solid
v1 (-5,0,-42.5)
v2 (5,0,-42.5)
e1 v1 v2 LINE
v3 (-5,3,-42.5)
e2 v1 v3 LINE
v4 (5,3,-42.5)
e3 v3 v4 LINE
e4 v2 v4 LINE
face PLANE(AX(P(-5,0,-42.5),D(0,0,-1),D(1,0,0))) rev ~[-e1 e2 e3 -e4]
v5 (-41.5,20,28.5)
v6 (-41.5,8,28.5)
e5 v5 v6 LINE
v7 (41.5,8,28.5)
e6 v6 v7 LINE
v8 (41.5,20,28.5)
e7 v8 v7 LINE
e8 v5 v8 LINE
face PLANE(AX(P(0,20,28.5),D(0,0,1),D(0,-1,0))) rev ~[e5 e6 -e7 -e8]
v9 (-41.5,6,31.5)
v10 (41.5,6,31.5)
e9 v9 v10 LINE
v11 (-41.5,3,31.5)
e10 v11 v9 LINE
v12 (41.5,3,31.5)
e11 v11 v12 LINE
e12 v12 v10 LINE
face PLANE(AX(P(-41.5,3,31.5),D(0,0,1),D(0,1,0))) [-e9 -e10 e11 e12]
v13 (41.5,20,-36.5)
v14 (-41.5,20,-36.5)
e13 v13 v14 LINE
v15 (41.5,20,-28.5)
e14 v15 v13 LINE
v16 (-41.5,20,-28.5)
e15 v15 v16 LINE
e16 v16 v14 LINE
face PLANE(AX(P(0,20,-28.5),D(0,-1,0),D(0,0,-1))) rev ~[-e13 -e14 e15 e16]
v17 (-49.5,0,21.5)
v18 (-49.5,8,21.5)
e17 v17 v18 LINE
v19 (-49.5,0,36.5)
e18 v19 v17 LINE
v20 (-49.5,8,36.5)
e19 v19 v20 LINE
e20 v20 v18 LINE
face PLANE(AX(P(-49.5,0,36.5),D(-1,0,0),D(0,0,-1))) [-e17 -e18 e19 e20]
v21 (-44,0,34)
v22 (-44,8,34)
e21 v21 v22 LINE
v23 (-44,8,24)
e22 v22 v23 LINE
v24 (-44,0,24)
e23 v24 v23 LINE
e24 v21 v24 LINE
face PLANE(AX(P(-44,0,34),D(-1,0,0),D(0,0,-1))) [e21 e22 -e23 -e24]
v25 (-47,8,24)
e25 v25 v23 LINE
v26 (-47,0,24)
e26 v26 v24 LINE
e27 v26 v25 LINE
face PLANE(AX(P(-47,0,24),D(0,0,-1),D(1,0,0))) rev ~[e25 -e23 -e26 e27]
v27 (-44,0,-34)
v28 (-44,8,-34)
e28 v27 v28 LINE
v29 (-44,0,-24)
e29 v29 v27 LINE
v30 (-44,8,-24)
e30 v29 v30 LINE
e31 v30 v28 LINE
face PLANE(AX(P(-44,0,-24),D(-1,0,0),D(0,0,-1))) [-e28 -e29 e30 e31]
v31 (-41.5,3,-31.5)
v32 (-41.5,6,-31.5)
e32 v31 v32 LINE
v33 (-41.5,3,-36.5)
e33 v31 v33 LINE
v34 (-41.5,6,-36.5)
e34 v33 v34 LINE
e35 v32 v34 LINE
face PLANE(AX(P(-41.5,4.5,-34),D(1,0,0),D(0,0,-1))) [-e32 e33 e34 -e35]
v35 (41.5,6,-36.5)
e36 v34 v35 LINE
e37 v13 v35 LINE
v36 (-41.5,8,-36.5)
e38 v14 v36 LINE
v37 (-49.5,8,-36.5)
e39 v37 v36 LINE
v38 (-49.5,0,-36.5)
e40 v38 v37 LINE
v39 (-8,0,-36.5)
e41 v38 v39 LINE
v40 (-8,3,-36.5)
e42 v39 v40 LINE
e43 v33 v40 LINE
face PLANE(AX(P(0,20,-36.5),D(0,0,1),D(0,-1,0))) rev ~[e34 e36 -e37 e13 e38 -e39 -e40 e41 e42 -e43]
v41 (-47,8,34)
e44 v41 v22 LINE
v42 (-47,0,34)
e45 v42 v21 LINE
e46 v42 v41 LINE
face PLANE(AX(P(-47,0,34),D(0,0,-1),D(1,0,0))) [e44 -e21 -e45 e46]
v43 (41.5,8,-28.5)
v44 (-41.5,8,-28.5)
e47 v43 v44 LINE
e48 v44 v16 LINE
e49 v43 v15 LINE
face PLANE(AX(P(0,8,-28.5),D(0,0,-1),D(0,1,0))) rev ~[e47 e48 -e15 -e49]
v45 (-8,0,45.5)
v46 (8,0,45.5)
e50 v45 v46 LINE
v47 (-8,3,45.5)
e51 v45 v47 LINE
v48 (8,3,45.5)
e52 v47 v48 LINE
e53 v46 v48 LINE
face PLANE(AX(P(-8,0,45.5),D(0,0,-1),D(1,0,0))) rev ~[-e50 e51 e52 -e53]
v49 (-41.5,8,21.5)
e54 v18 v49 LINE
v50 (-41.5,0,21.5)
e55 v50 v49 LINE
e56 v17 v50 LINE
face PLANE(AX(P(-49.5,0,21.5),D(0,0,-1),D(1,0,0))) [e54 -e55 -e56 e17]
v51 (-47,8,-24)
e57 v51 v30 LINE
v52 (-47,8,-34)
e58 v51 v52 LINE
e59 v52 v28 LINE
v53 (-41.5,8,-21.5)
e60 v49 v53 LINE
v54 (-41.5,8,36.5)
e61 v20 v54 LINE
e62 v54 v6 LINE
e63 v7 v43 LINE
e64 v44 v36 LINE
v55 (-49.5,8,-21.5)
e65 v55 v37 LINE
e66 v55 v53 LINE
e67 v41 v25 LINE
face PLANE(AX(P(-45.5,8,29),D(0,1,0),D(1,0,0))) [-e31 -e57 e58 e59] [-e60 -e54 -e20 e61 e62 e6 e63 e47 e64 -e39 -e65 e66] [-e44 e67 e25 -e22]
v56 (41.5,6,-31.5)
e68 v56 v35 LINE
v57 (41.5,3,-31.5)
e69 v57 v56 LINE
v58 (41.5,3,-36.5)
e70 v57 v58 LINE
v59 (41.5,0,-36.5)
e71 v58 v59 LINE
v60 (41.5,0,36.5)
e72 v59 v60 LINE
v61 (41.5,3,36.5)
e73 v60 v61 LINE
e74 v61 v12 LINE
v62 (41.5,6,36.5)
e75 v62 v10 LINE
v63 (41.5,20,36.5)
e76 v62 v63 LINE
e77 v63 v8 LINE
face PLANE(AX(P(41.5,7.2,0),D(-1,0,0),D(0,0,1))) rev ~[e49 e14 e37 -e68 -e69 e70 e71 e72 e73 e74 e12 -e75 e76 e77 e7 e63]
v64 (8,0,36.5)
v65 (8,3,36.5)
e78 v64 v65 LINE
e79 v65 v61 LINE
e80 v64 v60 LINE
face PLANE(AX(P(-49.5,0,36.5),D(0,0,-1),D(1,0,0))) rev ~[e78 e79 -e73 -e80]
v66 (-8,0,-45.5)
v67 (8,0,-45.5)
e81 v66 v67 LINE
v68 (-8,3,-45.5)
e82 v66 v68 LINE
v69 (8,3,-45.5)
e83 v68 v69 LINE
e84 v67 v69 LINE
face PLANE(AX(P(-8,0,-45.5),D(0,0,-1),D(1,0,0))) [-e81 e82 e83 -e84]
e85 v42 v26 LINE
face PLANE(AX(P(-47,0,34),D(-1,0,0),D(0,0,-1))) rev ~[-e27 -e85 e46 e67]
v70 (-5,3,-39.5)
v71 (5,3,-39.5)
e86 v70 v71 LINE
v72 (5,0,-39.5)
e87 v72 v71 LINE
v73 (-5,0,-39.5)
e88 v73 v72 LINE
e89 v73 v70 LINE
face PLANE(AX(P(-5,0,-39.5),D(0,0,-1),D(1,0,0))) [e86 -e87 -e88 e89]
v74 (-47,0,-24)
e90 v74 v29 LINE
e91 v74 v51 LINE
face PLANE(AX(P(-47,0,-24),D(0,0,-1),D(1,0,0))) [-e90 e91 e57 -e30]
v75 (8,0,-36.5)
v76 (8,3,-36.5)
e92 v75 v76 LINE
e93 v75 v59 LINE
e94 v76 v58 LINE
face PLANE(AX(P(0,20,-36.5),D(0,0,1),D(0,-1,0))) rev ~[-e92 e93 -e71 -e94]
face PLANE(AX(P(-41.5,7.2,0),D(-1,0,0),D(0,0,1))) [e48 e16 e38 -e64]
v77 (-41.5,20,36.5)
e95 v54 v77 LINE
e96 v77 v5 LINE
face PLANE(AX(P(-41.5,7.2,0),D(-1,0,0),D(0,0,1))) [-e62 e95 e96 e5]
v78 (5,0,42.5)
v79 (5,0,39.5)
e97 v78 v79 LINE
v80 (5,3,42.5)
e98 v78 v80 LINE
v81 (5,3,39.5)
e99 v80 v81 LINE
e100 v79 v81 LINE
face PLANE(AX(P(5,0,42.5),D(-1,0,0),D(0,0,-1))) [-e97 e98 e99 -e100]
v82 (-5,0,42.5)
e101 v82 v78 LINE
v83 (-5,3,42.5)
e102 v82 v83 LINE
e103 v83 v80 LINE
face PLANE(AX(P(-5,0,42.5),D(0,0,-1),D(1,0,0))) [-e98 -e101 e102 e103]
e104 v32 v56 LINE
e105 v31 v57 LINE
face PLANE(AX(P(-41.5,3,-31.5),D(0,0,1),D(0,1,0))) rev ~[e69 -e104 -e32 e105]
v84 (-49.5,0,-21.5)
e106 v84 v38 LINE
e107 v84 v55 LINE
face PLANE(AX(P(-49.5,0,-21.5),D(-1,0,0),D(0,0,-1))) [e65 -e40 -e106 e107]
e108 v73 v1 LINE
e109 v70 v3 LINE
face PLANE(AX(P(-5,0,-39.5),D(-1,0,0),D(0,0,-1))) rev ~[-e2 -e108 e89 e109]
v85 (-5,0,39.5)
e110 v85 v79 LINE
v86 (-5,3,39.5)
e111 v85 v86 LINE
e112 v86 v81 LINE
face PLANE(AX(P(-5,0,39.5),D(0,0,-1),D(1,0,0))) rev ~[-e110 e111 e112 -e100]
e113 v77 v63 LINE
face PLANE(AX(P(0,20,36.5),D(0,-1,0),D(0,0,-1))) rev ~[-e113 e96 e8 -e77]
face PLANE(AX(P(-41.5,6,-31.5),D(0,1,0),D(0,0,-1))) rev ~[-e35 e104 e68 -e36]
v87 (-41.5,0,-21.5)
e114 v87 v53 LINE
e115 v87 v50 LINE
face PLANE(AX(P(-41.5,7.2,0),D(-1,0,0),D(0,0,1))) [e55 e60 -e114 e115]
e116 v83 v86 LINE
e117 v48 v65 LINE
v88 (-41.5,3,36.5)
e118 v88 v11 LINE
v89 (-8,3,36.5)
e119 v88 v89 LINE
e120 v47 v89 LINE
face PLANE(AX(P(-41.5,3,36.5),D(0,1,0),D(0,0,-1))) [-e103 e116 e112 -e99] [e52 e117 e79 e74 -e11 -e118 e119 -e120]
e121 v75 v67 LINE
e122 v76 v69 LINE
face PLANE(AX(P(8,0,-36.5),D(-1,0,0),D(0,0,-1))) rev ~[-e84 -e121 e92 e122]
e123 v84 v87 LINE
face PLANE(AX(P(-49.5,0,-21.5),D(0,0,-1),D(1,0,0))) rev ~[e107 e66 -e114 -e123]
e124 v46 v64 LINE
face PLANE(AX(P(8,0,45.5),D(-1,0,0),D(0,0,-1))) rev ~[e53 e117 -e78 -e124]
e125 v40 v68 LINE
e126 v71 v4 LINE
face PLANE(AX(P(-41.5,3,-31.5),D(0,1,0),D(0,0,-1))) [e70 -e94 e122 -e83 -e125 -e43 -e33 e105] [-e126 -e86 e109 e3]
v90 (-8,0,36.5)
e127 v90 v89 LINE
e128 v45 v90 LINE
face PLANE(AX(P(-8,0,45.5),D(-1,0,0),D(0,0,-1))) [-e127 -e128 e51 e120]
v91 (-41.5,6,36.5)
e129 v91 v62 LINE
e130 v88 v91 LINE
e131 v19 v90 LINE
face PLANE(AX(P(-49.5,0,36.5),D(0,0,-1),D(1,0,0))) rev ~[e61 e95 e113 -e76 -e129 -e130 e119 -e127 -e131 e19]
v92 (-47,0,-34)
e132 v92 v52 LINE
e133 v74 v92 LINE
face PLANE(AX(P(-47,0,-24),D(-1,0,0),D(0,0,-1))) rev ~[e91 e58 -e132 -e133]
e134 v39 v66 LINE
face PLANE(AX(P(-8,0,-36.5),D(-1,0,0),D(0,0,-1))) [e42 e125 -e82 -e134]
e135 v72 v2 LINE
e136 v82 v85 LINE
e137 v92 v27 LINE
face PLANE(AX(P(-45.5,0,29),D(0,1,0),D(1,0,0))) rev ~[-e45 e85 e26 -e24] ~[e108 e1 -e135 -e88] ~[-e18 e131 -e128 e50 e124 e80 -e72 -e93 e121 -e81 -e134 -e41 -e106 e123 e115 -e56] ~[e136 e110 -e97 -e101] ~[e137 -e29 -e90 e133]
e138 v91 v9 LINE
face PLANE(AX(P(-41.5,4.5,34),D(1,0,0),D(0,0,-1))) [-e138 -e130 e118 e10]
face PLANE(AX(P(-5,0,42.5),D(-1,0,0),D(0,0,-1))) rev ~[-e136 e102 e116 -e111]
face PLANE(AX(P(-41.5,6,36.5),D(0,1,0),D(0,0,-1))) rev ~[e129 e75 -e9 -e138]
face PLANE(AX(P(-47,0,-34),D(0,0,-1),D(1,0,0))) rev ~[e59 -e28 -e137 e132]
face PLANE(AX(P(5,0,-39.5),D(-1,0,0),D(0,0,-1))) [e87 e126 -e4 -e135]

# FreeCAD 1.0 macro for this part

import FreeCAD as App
import Part
import Sketcher

V = App.Vector


def add_polygon(sketch, points):
    """Adds a closed chain of lines whose ends are joined by coincident constraints."""
    first, n = sketch.GeometryCount, len(points)
    for a, b in zip(points, points[1:] + points[:1]):
        sketch.addGeometry(Part.LineSegment(App.Vector(*a, 0), App.Vector(*b, 0)), False)
    for i in range(n):
        sketch.addConstraint(Sketcher.Constraint("Coincident", first + i, 2, first + (i + 1) % n, 1))

doc = App.newDocument("Part")
body = doc.addObject("PartDesign::Body", "Body")

sketch1 = body.newObject("Sketcher::SketchObject", "Sketch")
sketch1.AttachmentSupport = (doc.getObject("YZ_Plane"), [""])
sketch1.MapMode = "FlatFace"
add_polygon(sketch1, [(8, -28), (8, 28), (20, 28), (20, 36), (0, 36), (0, -36), (20, -36), (20, -28)])
sketch1.addConstraint([
    Sketcher.Constraint("Vertical", 0),
    Sketcher.Constraint("Horizontal", 1),
    Sketcher.Constraint("Vertical", 2),
    Sketcher.Constraint("Horizontal", 3),
    Sketcher.Constraint("Vertical", 4),
    Sketcher.Constraint("Horizontal", 5),
    Sketcher.Constraint("Vertical", 6),
    Sketcher.Constraint("Horizontal", 7),
    Sketcher.Constraint("Symmetric", 3, 2, 4, 2, -1, 1),
    Sketcher.Constraint("Symmetric", 1, 2, 6, 2, -1),
    Sketcher.Constraint("DistanceX", 1, 1, 1, 2, 12.0),
    Sketcher.Constraint("DistanceX", 3, 2, 3, 1, 20.0),
    Sketcher.Constraint("DistanceY", 0, 1, 0, 2, 57.0),
    Sketcher.Constraint("DistanceY", 2, 1, 2, 2, 8.0),
])
pad1 = body.newObject("PartDesign::Pad", "Pad")
pad1.Profile = sketch1
pad1.Length = 83
pad1.Midplane = True

sketch2 = body.newObject("Sketcher::SketchObject", "Sketch001")
sketch2.AttachmentSupport = (doc.getObject("XZ_Plane"), [""])
sketch2.MapMode = "FlatFace"
add_polygon(sketch2, [(-49.5, 21.5), (-49.5, 36.5), (-41.5, 36.5), (-41.5, 21.5)])
add_polygon(sketch2, [(-44, 34), (-47, 34), (-47, 24), (-44, 24)])
add_polygon(sketch2, [(-49.5, -36.5), (-49.5, -21.5), (-41.5, -21.5), (-41.5, -36.5)])
add_polygon(sketch2, [(-44, -24), (-47, -24), (-47, -34), (-44, -34)])
sketch2.addConstraint([
    Sketcher.Constraint("Vertical", 0),
    Sketcher.Constraint("Horizontal", 1),
    Sketcher.Constraint("Vertical", 2),
    Sketcher.Constraint("Horizontal", 3),
    Sketcher.Constraint("Horizontal", 4),
    Sketcher.Constraint("Vertical", 5),
    Sketcher.Constraint("Horizontal", 6),
    Sketcher.Constraint("Vertical", 7),
    Sketcher.Constraint("Vertical", 8),
    Sketcher.Constraint("Horizontal", 9),
    Sketcher.Constraint("Vertical", 10),
    Sketcher.Constraint("Horizontal", 11),
    Sketcher.Constraint("Horizontal", 12),
    Sketcher.Constraint("Vertical", 13),
    Sketcher.Constraint("Horizontal", 14),
    Sketcher.Constraint("Vertical", 15),
    Sketcher.Constraint("Symmetric", 3, 2, 8, 2, -1),
    Sketcher.Constraint("Symmetric", 1, 2, 10, 2, -1),
    Sketcher.Constraint("Symmetric", 5, 2, 12, 2, -1),
    Sketcher.Constraint("Symmetric", 7, 2, 14, 2, -1),
    Sketcher.Constraint("DistanceX", 1, 1, 1, 2, 8.0),
    Sketcher.Constraint("DistanceX", 4, 2, 4, 1, 3.0),
    Sketcher.Constraint("DistanceY", 0, 1, 0, 2, 15.0),
    Sketcher.Constraint("DistanceY", 5, 2, 5, 1, 10.0),
    Sketcher.Constraint("DistanceX", 4, 2, -1, 1, 47.0),
    Sketcher.Constraint("DistanceY", -1, 1, 4, 2, 34.0),
    Sketcher.Constraint("DistanceY", 8, 2, 3, 2, 43.0),
    Sketcher.Constraint("DistanceX", 0, 2, -1, 1, 49.5),
])
pad2 = body.newObject("PartDesign::Pad", "Pad001")
pad2.Profile = sketch2
pad2.Length = 8
pad2.Reversed = True

sketch3 = body.newObject("Sketcher::SketchObject", "Sketch002")
sketch3.AttachmentSupport = (doc.getObject("XZ_Plane"), [""])
sketch3.MapMode = "FlatFace"
add_polygon(sketch3, [(-8, 36.5), (-8, 45.5), (8, 45.5), (8, 36.5)])
add_polygon(sketch3, [(5, 42.5), (-5, 42.5), (-5, 39.5), (5, 39.5)])
add_polygon(sketch3, [(-8, -45.5), (-8, -36.5), (8, -36.5), (8, -45.5)])
add_polygon(sketch3, [(5, -39.5), (-5, -39.5), (-5, -42.5), (5, -42.5)])
sketch3.addConstraint([
    Sketcher.Constraint("Vertical", 0),
    Sketcher.Constraint("Horizontal", 1),
    Sketcher.Constraint("Vertical", 2),
    Sketcher.Constraint("Horizontal", 3),
    Sketcher.Constraint("Horizontal", 4),
    Sketcher.Constraint("Vertical", 5),
    Sketcher.Constraint("Horizontal", 6),
    Sketcher.Constraint("Vertical", 7),
    Sketcher.Constraint("Vertical", 8),
    Sketcher.Constraint("Horizontal", 9),
    Sketcher.Constraint("Vertical", 10),
    Sketcher.Constraint("Horizontal", 11),
    Sketcher.Constraint("Horizontal", 12),
    Sketcher.Constraint("Vertical", 13),
    Sketcher.Constraint("Horizontal", 14),
    Sketcher.Constraint("Vertical", 15),
    Sketcher.Constraint("Symmetric", 2, 2, 8, 2, -1, 1),
    Sketcher.Constraint("Symmetric", 0, 2, 10, 2, -1, 1),
    Sketcher.Constraint("Symmetric", 6, 2, 12, 2, -1, 1),
    Sketcher.Constraint("Symmetric", 4, 2, 14, 2, -1, 1),
    Sketcher.Constraint("Vertical", 3, 2, 8, 2),
    Sketcher.Constraint("Vertical", 5, 2, 12, 2),
    Sketcher.Constraint("DistanceX", 1, 1, 1, 2, 16.0),
    Sketcher.Constraint("DistanceX", 4, 2, 4, 1, 10.0),
    Sketcher.Constraint("DistanceY", 0, 1, 0, 2, 9.0),
    Sketcher.Constraint("DistanceY", 5, 2, 5, 1, 3.0),
    Sketcher.Constraint("DistanceY", 4, 2, 0, 2, 3.0),
    Sketcher.Constraint("DistanceY", 8, 2, 3, 2, 73.0),
])
pad3 = body.newObject("PartDesign::Pad", "Pad002")
pad3.Profile = sketch3
pad3.Length = 3
pad3.Reversed = True

sketch4 = body.newObject("Sketcher::SketchObject", "Sketch003")
sketch4.AttachmentSupport = (doc.getObject("YZ_Plane"), [""])
sketch4.MapMode = "FlatFace"
sketch4.AttachmentOffset = App.Placement(V(0, 0, 41.5), App.Rotation())
add_polygon(sketch4, [(6, 36.5), (3, 36.5), (3, 31.5), (6, 31.5)])
add_polygon(sketch4, [(6, -31.5), (3, -31.5), (3, -36.5), (6, -36.5)])
sketch4.addConstraint([
    Sketcher.Constraint("Horizontal", 0),
    Sketcher.Constraint("Vertical", 1),
    Sketcher.Constraint("Horizontal", 2),
    Sketcher.Constraint("Vertical", 3),
    Sketcher.Constraint("Horizontal", 4),
    Sketcher.Constraint("Vertical", 5),
    Sketcher.Constraint("Horizontal", 6),
    Sketcher.Constraint("Vertical", 7),
    Sketcher.Constraint("Symmetric", 1, 2, 4, 2, -1),
    Sketcher.Constraint("Symmetric", 3, 2, 6, 2, -1),
    Sketcher.Constraint("DistanceX", 0, 2, 0, 1, 3.0),
    Sketcher.Constraint("DistanceY", 1, 2, 1, 1, 5.0),
    Sketcher.Constraint("DistanceX", -1, 1, 0, 2, 3.0),
    Sketcher.Constraint("DistanceY", 4, 2, 1, 2, 63.0),
])
pocket1 = body.newObject("PartDesign::Pocket", "Pocket")
pocket1.Profile = sketch4
pocket1.Type = "TwoLengths"
pocket1.Length = 104.688235
pocket1.Length2 = 83
pocket1.Reversed = True

doc.recompute()
